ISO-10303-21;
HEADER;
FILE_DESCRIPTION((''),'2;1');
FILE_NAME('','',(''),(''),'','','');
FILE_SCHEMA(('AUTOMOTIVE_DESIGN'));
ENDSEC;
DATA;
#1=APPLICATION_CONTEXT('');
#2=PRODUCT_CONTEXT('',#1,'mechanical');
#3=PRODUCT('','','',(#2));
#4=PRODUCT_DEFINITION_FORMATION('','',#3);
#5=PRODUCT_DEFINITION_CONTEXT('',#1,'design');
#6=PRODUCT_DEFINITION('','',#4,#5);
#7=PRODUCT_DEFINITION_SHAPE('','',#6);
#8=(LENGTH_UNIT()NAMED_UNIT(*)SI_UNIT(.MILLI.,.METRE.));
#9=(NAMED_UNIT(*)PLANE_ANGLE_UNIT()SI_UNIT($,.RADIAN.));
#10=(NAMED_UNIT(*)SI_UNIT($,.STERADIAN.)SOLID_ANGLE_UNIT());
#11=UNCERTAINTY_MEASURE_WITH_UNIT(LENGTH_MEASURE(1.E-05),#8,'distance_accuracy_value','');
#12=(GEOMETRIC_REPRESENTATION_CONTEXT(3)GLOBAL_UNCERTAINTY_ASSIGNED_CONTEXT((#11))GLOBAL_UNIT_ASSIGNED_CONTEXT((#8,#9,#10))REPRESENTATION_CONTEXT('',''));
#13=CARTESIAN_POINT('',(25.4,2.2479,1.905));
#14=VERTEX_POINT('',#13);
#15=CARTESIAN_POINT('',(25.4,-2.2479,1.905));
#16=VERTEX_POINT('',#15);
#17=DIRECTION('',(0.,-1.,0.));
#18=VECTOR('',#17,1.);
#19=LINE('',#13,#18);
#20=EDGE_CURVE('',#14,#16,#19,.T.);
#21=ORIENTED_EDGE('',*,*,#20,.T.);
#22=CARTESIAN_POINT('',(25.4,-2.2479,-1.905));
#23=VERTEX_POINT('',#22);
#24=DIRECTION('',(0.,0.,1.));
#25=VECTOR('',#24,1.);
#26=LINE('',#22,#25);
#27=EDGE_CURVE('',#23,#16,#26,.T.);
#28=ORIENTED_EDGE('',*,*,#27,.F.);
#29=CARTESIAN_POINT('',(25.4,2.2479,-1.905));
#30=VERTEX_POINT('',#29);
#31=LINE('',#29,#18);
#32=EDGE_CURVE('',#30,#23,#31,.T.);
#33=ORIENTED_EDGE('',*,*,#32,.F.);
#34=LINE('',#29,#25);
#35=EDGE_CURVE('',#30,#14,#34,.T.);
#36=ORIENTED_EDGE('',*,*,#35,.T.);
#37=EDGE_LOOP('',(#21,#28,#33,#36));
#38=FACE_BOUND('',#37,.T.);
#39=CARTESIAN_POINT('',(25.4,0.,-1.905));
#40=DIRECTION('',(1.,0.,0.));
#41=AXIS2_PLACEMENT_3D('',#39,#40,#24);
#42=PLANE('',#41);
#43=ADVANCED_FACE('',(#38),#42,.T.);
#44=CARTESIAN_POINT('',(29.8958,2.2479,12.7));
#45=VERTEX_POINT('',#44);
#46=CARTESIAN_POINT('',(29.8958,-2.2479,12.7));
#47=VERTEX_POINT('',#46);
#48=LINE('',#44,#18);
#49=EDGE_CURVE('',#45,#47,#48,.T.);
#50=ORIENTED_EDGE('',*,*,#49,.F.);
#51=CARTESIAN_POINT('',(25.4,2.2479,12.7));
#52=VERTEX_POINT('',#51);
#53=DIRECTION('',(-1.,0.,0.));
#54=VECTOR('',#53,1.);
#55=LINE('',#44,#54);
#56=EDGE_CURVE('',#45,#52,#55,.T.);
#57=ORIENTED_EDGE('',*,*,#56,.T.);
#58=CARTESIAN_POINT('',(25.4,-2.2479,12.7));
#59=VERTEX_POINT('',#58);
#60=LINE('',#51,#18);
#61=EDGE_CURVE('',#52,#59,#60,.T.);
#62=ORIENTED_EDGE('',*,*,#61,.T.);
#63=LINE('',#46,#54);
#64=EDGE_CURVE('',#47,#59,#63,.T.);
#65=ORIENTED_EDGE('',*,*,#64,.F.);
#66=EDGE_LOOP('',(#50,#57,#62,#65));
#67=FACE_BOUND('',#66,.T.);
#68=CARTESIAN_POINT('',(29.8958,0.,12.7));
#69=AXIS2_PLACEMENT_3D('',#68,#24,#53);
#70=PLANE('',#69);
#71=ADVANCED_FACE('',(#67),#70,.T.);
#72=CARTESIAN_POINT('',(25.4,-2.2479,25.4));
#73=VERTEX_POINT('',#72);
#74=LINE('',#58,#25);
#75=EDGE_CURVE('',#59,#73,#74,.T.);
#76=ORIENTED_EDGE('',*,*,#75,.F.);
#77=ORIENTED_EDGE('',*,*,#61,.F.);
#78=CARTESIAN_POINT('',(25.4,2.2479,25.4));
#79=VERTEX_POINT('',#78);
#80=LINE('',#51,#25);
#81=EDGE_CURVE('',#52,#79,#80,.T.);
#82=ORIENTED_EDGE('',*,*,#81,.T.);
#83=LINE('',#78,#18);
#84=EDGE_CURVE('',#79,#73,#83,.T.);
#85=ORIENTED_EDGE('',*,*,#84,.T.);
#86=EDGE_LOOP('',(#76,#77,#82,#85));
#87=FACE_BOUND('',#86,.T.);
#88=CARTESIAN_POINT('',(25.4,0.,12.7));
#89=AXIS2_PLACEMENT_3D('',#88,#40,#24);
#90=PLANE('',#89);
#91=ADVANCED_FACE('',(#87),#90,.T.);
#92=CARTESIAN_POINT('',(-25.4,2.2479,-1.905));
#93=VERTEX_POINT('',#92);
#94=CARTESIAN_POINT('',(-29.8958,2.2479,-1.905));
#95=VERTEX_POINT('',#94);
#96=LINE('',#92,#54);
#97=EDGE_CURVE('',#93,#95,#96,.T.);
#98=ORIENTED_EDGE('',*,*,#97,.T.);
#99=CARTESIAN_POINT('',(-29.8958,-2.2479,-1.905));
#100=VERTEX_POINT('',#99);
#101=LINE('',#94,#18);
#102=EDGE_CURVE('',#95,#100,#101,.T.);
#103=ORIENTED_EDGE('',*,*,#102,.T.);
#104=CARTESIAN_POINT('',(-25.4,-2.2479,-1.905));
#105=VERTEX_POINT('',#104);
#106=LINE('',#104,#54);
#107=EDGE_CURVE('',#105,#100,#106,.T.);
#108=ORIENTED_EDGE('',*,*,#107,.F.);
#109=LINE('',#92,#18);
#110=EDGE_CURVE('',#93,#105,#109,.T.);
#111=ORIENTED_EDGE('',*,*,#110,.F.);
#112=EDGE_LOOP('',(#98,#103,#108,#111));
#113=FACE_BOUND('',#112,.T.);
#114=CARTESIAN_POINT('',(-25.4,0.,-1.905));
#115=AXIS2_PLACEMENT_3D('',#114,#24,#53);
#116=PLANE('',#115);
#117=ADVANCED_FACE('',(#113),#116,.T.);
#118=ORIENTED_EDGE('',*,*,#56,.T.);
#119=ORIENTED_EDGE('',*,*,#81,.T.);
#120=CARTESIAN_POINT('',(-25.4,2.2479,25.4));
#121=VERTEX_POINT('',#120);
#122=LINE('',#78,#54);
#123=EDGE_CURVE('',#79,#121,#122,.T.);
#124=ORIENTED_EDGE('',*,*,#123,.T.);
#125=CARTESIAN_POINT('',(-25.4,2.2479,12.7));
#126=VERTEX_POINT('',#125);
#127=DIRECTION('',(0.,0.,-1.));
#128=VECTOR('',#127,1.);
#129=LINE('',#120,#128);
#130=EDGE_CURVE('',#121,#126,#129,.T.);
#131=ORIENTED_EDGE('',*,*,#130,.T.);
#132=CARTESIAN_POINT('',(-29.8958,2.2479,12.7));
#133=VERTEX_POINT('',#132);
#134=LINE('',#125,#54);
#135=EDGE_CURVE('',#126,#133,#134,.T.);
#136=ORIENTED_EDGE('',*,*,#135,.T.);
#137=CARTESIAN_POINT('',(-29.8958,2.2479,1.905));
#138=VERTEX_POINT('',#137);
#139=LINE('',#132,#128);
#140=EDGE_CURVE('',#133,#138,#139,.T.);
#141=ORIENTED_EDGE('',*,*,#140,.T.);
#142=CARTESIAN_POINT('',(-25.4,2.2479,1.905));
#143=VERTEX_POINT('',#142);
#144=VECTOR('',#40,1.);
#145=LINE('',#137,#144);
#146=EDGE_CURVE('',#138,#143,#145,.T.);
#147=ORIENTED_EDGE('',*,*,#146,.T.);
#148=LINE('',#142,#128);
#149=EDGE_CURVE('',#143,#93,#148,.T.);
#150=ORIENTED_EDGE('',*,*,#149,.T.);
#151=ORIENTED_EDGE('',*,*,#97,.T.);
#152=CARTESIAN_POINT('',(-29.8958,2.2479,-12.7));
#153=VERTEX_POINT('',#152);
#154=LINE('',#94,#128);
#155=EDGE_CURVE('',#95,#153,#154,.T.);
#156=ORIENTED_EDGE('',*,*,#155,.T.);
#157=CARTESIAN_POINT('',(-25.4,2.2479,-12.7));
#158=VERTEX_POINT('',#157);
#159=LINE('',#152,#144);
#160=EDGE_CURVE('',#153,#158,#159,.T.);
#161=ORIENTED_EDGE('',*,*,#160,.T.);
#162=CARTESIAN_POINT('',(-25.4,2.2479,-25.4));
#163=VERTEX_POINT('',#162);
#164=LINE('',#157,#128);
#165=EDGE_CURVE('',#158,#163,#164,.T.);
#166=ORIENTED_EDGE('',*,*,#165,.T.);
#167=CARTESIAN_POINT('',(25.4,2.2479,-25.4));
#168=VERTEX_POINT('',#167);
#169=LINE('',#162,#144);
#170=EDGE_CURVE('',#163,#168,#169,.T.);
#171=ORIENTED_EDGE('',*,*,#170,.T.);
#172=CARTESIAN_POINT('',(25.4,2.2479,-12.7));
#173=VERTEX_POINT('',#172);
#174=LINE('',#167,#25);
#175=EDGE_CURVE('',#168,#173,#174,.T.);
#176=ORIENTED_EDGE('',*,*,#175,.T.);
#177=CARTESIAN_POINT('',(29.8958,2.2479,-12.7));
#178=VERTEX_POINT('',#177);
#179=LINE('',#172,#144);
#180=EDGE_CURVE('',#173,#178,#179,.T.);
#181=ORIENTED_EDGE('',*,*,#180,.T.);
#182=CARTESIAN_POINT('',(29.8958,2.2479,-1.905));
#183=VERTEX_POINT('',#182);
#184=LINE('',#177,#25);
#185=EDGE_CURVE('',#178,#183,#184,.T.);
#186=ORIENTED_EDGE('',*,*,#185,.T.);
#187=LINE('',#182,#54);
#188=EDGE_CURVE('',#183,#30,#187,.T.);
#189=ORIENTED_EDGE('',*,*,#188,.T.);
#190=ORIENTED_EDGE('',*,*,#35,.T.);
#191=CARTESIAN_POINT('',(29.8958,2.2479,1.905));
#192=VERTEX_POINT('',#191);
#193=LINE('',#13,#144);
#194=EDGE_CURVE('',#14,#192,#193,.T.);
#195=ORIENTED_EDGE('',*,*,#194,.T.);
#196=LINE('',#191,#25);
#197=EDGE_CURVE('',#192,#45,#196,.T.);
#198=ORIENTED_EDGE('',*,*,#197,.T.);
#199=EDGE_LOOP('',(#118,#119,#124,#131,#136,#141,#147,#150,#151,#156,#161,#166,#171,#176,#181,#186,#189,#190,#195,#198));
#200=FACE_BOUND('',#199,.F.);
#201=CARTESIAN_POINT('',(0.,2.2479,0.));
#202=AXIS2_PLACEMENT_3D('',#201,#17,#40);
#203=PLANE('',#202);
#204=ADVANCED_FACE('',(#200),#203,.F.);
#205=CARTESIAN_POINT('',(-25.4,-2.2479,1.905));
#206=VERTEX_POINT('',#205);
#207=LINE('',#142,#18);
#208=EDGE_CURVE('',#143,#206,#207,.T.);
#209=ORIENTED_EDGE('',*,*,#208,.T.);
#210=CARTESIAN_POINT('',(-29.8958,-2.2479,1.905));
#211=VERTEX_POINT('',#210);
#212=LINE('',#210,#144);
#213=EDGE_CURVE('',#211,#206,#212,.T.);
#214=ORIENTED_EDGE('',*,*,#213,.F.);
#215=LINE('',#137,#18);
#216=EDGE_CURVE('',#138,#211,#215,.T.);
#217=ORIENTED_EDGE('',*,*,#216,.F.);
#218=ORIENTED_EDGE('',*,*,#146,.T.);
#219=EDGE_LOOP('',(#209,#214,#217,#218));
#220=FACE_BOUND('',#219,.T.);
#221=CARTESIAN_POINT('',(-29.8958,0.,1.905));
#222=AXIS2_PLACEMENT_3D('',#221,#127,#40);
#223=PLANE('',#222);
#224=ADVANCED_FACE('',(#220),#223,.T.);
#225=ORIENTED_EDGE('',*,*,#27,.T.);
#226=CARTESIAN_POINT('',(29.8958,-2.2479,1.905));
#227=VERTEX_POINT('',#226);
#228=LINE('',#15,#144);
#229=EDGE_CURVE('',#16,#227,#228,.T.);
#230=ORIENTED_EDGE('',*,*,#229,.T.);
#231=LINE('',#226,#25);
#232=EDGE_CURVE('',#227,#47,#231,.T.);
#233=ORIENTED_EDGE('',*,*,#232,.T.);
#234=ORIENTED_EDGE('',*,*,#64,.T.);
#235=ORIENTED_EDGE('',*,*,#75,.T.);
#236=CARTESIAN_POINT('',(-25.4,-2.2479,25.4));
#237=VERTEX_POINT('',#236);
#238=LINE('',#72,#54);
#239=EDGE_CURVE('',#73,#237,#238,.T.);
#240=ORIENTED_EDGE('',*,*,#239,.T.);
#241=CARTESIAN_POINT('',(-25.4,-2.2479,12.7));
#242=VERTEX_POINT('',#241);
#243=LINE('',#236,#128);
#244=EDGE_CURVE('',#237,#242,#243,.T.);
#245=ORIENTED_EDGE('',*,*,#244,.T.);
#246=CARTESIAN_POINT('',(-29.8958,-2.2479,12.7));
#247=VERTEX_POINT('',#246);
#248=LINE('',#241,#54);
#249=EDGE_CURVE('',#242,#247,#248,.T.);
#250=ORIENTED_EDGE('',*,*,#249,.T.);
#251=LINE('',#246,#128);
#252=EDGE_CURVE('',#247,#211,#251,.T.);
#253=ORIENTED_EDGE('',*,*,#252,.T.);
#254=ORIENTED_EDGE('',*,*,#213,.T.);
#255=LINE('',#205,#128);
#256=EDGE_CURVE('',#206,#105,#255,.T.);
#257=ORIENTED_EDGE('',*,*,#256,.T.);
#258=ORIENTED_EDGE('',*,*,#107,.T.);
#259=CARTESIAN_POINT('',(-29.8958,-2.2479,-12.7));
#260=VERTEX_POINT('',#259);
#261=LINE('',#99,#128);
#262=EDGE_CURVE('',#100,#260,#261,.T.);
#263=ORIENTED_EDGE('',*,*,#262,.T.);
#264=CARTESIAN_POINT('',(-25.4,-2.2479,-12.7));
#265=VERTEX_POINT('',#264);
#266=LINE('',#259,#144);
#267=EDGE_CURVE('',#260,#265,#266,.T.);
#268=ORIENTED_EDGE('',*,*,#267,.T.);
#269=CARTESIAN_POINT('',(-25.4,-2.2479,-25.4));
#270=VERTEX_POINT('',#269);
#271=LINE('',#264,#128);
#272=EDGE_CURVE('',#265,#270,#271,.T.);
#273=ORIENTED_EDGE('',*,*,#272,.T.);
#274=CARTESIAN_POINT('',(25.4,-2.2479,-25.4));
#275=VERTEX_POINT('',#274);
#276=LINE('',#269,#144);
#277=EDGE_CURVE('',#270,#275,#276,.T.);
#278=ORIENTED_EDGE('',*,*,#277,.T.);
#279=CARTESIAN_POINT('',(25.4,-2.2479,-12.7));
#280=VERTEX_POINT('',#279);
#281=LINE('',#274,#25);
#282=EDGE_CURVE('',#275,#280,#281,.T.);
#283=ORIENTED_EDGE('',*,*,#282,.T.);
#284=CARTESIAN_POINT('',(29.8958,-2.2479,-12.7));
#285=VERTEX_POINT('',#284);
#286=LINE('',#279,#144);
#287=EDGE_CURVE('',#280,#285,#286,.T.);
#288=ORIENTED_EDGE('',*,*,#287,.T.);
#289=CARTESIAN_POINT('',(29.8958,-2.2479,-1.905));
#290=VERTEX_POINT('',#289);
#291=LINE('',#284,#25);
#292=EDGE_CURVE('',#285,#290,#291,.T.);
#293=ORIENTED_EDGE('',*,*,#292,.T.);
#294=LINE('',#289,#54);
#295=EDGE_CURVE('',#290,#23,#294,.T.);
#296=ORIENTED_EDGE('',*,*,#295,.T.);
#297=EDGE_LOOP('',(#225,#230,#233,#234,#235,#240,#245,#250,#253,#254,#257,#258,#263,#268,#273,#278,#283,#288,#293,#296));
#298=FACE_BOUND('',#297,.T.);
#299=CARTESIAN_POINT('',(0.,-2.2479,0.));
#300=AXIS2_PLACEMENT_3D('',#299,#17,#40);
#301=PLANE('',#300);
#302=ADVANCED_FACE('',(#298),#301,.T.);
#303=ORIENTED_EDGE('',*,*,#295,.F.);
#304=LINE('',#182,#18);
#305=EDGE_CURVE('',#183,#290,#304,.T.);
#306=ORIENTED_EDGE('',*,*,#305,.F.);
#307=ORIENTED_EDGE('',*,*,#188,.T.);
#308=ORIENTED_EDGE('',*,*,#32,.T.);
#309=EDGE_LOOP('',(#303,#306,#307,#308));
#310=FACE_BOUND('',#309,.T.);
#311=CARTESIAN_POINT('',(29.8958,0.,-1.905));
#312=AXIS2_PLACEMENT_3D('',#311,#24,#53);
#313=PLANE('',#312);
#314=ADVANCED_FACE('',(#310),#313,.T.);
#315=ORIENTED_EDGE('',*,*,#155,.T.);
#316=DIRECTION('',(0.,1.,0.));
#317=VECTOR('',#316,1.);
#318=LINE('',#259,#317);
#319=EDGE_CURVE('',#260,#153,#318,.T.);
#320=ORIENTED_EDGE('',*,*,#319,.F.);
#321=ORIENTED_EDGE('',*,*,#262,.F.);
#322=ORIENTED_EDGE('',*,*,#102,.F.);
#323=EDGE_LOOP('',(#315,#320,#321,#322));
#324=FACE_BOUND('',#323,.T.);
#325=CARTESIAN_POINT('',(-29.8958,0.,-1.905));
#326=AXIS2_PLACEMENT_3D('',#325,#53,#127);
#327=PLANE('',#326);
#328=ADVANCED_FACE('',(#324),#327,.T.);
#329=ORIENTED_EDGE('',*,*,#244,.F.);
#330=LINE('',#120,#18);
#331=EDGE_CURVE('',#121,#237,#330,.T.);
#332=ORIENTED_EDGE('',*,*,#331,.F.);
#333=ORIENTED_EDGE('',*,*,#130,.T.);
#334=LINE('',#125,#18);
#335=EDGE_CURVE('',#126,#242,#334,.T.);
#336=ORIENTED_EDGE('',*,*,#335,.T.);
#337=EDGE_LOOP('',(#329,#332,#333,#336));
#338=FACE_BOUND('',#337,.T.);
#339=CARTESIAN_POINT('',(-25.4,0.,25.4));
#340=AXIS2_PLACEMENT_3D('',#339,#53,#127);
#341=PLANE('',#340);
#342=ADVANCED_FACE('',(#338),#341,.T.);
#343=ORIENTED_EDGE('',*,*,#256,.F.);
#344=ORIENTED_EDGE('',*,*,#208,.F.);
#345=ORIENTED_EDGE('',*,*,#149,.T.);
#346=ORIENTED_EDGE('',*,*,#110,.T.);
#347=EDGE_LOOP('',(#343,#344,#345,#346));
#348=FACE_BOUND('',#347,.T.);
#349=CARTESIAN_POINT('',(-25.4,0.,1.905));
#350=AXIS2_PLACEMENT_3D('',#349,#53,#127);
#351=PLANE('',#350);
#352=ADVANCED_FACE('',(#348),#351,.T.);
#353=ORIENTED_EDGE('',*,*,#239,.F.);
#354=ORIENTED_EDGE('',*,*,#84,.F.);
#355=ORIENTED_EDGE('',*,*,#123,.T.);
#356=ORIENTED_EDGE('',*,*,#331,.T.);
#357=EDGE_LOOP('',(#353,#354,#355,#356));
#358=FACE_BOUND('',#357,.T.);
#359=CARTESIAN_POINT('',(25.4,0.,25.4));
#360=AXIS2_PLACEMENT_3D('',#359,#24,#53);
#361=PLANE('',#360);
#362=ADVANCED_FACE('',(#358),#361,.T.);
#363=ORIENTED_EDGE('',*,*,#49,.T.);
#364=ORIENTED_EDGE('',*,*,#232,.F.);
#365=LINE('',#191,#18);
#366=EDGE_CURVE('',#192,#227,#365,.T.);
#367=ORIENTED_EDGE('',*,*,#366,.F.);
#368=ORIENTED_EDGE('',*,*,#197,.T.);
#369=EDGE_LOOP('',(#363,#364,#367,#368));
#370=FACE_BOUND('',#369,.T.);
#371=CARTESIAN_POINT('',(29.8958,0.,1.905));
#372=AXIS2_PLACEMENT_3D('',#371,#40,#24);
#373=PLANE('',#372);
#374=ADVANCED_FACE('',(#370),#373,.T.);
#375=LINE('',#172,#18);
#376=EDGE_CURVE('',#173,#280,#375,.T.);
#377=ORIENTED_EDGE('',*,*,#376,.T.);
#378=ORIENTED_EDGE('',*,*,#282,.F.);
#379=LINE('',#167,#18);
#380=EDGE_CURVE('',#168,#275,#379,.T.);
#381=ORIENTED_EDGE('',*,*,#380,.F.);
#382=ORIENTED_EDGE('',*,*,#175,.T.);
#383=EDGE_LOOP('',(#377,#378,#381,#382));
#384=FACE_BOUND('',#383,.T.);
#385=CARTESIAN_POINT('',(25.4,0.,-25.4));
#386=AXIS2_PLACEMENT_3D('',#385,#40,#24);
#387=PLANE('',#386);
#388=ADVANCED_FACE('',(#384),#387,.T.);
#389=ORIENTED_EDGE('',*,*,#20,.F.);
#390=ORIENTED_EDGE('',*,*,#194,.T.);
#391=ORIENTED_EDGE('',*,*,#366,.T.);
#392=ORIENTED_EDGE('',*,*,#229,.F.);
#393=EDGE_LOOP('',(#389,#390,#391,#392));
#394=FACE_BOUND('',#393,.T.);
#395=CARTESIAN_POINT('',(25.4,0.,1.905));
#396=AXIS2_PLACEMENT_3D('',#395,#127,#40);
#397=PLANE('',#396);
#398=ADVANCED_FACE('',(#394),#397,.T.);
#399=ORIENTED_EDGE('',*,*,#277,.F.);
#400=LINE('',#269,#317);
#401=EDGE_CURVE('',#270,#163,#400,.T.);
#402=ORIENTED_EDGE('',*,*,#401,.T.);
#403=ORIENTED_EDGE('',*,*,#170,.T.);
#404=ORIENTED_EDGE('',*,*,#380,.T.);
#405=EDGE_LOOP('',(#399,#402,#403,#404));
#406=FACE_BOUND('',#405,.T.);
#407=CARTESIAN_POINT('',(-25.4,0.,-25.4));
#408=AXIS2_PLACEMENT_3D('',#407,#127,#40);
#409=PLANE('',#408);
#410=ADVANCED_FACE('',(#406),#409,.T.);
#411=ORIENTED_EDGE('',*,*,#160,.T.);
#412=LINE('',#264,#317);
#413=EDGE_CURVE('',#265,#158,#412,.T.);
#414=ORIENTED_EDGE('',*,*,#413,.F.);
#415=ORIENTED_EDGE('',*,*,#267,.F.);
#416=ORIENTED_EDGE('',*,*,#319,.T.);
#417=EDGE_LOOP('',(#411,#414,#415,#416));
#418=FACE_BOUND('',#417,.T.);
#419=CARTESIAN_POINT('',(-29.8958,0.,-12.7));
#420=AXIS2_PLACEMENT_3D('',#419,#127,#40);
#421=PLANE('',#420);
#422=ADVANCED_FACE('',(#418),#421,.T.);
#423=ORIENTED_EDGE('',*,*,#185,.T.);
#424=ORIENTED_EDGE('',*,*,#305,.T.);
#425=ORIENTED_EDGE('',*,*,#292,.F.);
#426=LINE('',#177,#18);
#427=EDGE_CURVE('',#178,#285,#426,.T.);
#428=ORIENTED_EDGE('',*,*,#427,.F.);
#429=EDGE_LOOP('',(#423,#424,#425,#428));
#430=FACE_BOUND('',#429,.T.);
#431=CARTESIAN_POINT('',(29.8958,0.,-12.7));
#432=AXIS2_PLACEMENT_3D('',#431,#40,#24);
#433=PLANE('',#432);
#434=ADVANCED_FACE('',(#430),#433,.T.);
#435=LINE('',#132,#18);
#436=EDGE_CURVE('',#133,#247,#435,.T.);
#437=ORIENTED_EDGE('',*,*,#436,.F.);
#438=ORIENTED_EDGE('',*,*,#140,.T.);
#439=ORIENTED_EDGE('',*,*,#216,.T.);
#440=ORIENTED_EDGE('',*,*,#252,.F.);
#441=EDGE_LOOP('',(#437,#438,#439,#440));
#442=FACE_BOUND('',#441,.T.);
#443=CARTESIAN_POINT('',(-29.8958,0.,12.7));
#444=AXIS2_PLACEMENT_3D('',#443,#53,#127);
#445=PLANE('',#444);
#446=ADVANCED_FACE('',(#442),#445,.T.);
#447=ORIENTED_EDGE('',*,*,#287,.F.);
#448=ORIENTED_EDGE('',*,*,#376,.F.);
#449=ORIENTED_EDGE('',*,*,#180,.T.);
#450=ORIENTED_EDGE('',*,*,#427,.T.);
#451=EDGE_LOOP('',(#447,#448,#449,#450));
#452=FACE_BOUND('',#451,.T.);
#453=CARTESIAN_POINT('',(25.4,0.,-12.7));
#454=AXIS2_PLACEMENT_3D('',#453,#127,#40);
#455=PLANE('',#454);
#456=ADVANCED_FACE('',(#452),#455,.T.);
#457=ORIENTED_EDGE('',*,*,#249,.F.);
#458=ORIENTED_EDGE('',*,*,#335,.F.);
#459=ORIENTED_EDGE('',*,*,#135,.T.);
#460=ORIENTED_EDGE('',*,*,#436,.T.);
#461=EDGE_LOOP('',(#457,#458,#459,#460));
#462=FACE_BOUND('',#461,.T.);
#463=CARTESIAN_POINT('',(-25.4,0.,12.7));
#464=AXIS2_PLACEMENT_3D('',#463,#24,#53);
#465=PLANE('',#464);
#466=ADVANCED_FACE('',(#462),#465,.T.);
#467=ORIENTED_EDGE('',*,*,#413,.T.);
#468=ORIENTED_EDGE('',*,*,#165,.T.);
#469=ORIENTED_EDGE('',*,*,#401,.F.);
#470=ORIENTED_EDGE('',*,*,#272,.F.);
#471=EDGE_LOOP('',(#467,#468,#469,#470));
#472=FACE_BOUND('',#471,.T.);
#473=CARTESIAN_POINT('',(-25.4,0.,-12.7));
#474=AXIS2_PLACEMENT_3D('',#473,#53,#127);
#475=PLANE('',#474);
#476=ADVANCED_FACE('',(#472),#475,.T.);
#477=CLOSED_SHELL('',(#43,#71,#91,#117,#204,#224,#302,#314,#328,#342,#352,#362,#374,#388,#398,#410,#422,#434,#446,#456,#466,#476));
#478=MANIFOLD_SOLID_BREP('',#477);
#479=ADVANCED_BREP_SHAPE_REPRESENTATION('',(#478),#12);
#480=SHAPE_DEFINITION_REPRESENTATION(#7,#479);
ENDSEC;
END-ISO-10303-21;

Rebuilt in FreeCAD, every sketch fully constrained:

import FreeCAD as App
import Part
import Sketcher

V = App.Vector
Q = App.Units.Quantity


def add_polygon(sketch, points):
    """Adds a closed chain of lines whose ends are joined by coincident constraints."""
    first, n = sketch.GeometryCount, len(points)
    for a, b in zip(points, points[1:] + points[:1]):
        sketch.addGeometry(Part.LineSegment(App.Vector(*a, 0), App.Vector(*b, 0)), False)
    for i in range(n):
        sketch.addConstraint(Sketcher.Constraint("Coincident", first + i, 2, first + (i + 1) % n, 1))

doc = App.newDocument("Part")
body = doc.addObject("PartDesign::Body", "Body")

sketch1 = body.newObject("Sketcher::SketchObject", "Sketch")
sketch1.AttachmentSupport = (doc.getObject("XZ_Plane"), [""])
sketch1.MapMode = "FlatFace"
add_polygon(sketch1, [(-25.4, -25.4), (25.4, -25.4), (25.4, -12.7), (29.9, -12.7), (29.9, -1.9), (25.4, -1.9), (25.4, 1.9), (29.9, 1.9), (29.9, 12.7), (25.4, 12.7), (25.4, 25.4), (-25.4, 25.4), (-25.4, 12.7), (-29.9, 12.7), (-29.9, 1.9), (-25.4, 1.9), (-25.4, -1.9), (-29.9, -1.9), (-29.9, -12.7), (-25.4, -12.7)])
sketch1.addConstraint([
    Sketcher.Constraint("Horizontal", 0),
    Sketcher.Constraint("Vertical", 1),
    Sketcher.Constraint("Horizontal", 2),
    Sketcher.Constraint("Vertical", 3),
    Sketcher.Constraint("Horizontal", 4),
    Sketcher.Constraint("Vertical", 5),
    Sketcher.Constraint("Horizontal", 6),
    Sketcher.Constraint("Vertical", 7),
    Sketcher.Constraint("Horizontal", 8),
    Sketcher.Constraint("Vertical", 9),
    Sketcher.Constraint("Horizontal", 10),
    Sketcher.Constraint("Vertical", 11),
    Sketcher.Constraint("Horizontal", 12),
    Sketcher.Constraint("Vertical", 13),
    Sketcher.Constraint("Horizontal", 14),
    Sketcher.Constraint("Vertical", 15),
    Sketcher.Constraint("Horizontal", 16),
    Sketcher.Constraint("Vertical", 17),
    Sketcher.Constraint("Horizontal", 18),
    Sketcher.Constraint("Vertical", 19),
    Sketcher.Constraint("Symmetric", 0, 2, 10, 2, -1, 1),
    Sketcher.Constraint("Symmetric", 2, 2, 12, 2, -1, 1),
    Sketcher.Constraint("Symmetric", 4, 2, 14, 2, -1, 1),
    Sketcher.Constraint("Symmetric", 6, 2, 16, 2, -1, 1),
    Sketcher.Constraint("Symmetric", 8, 2, 18, 2, -1, 1),
    Sketcher.Constraint("Symmetric", 8, 2, 11, 2, -2),
    Sketcher.Constraint("Symmetric", 6, 2, 13, 2, -2),
    Sketcher.Constraint("Vertical", 1, 2, 4, 2),
    Sketcher.Constraint("DistanceX", 0, 1, 0, 2, Q("2 in")),
    Sketcher.Constraint("DistanceY", 1, 1, 1, 2, Q("0.5 in")),
    Sketcher.Constraint("DistanceY", 0, 2, -1, 1, Q("1 in")),
    Sketcher.Constraint("DistanceY", 5, 1, 5, 2, Q("0.15 in")),
    Sketcher.Constraint("DistanceX", 2, 1, 2, 2, Q("0.177 in")),
])
pad1 = body.newObject("PartDesign::Pad", "Pad")
pad1.Profile = sketch1
pad1.Length = Q("0.177 in")
pad1.Midplane = True

doc.recompute()
